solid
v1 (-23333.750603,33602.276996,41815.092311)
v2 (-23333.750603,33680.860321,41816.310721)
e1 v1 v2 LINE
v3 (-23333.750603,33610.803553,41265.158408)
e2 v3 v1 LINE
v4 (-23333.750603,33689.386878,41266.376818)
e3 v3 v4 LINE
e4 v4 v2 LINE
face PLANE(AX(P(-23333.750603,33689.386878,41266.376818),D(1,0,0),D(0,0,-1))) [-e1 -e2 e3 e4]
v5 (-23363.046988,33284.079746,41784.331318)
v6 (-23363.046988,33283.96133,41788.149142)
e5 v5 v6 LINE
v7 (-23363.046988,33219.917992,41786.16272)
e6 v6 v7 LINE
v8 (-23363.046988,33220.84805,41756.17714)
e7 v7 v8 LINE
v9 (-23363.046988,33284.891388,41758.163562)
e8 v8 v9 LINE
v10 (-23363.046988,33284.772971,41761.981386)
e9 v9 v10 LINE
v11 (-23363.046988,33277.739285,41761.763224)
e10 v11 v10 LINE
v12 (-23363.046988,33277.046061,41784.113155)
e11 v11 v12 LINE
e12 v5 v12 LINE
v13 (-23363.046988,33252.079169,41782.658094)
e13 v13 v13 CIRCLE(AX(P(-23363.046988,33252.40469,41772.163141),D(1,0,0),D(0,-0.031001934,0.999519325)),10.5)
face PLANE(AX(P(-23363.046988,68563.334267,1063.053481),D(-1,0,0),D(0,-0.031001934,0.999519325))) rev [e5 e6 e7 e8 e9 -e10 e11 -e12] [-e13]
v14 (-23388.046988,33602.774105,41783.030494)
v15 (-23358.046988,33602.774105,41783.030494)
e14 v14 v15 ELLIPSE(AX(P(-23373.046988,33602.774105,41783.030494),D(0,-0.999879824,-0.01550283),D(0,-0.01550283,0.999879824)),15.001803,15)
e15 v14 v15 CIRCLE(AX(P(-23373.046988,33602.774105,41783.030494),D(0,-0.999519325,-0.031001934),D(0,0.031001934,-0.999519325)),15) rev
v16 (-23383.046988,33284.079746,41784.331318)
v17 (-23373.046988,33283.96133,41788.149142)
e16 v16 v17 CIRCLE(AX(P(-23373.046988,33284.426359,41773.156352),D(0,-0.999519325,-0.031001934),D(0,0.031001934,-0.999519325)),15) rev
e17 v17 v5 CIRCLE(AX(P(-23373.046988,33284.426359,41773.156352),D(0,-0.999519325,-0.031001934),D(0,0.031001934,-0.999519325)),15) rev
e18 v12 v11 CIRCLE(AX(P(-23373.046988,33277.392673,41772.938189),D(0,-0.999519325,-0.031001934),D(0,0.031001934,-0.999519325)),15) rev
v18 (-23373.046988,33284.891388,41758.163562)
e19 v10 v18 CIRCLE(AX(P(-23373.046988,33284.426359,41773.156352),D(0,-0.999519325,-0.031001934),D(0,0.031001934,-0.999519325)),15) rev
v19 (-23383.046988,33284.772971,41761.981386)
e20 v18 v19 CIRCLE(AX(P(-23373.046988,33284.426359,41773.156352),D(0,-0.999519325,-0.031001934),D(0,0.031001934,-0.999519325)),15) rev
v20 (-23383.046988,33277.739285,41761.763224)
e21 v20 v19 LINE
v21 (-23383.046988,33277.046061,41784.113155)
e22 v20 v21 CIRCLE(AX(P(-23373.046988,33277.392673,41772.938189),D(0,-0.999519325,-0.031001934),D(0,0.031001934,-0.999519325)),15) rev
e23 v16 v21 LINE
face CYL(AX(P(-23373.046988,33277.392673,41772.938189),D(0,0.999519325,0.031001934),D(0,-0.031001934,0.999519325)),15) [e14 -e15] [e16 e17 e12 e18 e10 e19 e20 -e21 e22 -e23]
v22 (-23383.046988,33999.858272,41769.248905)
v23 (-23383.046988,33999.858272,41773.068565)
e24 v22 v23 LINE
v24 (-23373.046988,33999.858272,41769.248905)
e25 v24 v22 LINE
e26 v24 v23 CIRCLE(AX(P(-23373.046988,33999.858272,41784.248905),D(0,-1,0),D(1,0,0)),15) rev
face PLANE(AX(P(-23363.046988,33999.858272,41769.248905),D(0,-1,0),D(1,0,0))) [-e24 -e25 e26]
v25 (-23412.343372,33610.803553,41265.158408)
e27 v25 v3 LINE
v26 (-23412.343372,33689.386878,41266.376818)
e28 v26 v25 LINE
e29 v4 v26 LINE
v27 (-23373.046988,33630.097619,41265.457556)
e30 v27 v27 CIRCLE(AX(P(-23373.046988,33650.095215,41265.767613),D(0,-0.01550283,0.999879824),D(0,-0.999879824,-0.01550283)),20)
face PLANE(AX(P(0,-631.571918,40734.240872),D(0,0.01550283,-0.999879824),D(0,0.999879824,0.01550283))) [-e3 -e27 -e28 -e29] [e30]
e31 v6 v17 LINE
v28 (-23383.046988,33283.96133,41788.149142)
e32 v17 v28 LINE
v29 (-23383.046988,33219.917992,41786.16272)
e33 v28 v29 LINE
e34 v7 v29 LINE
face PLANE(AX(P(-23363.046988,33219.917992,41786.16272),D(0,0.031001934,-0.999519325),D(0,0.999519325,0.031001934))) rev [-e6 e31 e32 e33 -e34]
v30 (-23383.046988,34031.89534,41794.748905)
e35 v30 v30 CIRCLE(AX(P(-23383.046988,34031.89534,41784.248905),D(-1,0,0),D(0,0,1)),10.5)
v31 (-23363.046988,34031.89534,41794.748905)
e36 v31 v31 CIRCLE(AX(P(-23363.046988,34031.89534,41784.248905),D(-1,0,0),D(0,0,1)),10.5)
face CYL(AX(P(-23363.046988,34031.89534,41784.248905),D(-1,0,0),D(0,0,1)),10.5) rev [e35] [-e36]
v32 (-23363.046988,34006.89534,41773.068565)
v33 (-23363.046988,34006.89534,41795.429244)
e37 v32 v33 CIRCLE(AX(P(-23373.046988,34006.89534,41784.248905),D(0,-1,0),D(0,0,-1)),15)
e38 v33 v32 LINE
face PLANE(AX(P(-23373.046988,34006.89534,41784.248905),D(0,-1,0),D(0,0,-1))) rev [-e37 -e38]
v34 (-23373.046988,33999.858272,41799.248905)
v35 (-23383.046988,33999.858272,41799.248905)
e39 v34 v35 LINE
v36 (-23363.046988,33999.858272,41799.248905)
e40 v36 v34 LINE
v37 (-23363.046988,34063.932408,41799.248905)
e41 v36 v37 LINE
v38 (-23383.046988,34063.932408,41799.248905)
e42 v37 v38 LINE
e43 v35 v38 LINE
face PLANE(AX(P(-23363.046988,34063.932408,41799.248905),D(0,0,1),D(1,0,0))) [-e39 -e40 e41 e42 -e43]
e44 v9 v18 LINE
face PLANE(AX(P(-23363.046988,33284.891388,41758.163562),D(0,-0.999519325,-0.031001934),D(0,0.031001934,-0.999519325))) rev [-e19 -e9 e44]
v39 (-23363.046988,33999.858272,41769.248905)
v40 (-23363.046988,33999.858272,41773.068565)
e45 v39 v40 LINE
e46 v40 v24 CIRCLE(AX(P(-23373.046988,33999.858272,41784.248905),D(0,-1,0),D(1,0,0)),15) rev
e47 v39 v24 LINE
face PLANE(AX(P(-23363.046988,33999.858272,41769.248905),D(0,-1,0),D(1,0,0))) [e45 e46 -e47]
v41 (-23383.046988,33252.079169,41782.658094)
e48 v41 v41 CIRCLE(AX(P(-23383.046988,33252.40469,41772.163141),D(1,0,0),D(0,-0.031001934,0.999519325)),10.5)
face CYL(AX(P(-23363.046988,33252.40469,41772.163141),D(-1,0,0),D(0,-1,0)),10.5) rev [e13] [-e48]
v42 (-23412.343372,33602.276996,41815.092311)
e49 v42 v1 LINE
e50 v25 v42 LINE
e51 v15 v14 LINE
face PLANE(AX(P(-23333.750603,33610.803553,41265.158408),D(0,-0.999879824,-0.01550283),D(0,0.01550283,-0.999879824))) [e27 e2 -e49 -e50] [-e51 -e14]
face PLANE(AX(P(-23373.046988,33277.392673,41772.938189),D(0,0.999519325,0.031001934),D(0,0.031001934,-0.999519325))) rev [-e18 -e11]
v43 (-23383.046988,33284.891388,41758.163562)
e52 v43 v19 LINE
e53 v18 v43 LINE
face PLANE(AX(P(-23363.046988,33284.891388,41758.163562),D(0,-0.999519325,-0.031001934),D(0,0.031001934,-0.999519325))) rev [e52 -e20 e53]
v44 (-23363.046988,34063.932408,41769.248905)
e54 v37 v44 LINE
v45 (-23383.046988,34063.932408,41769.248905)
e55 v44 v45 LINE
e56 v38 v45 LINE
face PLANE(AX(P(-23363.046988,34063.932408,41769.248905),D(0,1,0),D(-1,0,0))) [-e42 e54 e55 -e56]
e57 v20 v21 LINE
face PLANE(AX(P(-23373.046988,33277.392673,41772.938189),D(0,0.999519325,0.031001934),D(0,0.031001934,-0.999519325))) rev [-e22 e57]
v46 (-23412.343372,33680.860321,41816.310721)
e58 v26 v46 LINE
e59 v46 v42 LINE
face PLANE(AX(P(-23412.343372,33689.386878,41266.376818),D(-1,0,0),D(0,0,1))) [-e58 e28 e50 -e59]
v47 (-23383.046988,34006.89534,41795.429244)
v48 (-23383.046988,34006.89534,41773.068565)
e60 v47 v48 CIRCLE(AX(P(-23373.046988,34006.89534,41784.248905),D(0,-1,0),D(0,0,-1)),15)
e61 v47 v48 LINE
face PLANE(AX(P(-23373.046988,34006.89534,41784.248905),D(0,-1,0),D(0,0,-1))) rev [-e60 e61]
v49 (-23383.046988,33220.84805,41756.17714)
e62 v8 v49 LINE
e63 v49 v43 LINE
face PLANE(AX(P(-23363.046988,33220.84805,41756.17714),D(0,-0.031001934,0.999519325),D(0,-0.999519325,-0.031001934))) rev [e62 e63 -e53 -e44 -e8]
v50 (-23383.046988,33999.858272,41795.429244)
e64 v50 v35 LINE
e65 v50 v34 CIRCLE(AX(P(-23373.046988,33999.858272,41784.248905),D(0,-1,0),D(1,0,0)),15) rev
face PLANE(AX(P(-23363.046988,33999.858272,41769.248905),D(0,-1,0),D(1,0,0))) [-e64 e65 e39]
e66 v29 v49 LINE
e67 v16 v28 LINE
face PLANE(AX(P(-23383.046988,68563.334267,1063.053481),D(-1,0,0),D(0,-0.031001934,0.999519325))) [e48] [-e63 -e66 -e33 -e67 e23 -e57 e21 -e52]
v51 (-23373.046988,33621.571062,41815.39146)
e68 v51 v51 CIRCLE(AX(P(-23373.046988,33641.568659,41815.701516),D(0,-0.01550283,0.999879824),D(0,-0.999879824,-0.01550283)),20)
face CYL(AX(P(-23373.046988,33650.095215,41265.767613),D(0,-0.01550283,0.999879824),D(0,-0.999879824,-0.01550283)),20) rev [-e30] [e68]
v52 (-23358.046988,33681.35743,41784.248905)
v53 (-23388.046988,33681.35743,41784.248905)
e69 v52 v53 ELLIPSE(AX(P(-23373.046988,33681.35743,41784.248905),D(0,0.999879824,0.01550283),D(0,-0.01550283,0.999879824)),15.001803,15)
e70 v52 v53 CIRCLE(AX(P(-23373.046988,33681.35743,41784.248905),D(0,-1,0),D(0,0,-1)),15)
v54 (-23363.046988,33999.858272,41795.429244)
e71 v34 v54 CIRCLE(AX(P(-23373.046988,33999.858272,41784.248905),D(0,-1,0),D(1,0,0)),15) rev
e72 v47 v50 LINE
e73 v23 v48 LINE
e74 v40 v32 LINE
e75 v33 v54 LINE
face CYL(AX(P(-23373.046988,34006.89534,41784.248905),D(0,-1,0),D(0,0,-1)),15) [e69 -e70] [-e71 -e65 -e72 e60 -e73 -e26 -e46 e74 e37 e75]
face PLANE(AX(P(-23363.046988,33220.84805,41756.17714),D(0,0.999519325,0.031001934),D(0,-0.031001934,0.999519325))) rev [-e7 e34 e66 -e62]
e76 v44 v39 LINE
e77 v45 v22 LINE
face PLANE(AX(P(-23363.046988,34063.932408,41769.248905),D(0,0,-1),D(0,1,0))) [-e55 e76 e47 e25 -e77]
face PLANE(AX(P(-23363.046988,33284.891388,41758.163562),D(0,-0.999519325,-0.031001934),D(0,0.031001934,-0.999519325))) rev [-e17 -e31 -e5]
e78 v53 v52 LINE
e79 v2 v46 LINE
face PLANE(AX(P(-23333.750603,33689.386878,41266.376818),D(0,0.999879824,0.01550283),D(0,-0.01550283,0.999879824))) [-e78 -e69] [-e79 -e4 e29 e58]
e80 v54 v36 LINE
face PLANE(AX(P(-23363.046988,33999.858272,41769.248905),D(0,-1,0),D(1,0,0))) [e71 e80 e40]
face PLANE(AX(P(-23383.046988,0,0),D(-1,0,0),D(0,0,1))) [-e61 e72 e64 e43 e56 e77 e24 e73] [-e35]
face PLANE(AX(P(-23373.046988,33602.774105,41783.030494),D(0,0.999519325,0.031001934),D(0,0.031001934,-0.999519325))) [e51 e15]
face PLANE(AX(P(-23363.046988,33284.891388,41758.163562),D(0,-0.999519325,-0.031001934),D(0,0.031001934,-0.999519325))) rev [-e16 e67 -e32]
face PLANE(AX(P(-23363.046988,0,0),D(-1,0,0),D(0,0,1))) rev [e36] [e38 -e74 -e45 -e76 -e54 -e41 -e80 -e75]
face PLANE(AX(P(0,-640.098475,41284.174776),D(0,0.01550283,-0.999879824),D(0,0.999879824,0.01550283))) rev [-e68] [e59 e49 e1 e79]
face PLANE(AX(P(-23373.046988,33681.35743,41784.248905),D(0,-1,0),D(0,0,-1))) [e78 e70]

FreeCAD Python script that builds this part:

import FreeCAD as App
import Part
import Sketcher

V = App.Vector


def add_polygon(sketch, points):
    """Adds a closed chain of lines whose ends are joined by coincident constraints."""
    first, n = sketch.GeometryCount, len(points)
    for a, b in zip(points, points[1:] + points[:1]):
        sketch.addGeometry(Part.LineSegment(App.Vector(*a, 0), App.Vector(*b, 0)), False)
    for i in range(n):
        sketch.addConstraint(Sketcher.Constraint("Coincident", first + i, 2, first + (i + 1) % n, 1))

doc = App.newDocument("Part")
params = doc.addObject("Spreadsheet::Sheet", "Params")
for row, (alias, value) in enumerate([
    ("sketch1_diameter", "40 mm"),
    ("pad1_length", "550 mm"),
    ("sketch2_diameter", "30 mm"),
    ("sketch4_diameter", "21 mm"),
    ("sketch4_height", "30 mm"),
    ("pad2_length", "20 mm"),
], start=1):
    params.set(f"A{row}", alias)
    params.set(f"B{row}", "=" + value)
    params.setAlias(f"B{row}", alias)

body = doc.addObject("PartDesign::Body", "Body")

sketch1 = body.newObject("Sketcher::SketchObject", "Sketch")
sketch1.Placement = App.Placement(V(0, 27232.877627, 41716.336726), App.Rotation(V(1, 0, 0), V(0, 0.999879824, 0.01550283), V(0, -0.01550283, 0.999879824), "ZXY"))
add_polygon(sketch1, [(-23412.343372, 6448.757682), (-23412.343372, 6370.164912), (-23333.750603, 6370.164912), (-23333.750603, 6448.757682)])
sketch1.addGeometry(Part.Circle(V(-23373.046988, 6409.461297, 0), V(0, 0, 1), 20), False)
sketch1.addConstraint(Sketcher.Constraint("Vertical", 0))
sketch1.addConstraint(Sketcher.Constraint("Horizontal", 1))
sketch1.addConstraint(Sketcher.Constraint("Vertical", 2))
sketch1.addConstraint(Sketcher.Constraint("Horizontal", 3))
sketch1.addConstraint(Sketcher.Constraint("Equal", 3, 0))
sketch1.addConstraint(Sketcher.Constraint("Diameter", 4, 40.0))
sketch1.addConstraint(Sketcher.Constraint("DistanceX", 1, 1, 1, 2, 78.592769))
sketch1.addConstraint(Sketcher.Constraint("DistanceY", -1, 1, 2, 2, 6448.757682))
sketch1.addConstraint(Sketcher.Constraint("DistanceX", 4, 3, -1, 1, 23373.046988))
sketch1.addConstraint(Sketcher.Constraint("DistanceY", -1, 1, 4, 3, 6409.461297))
sketch1.addConstraint(Sketcher.Constraint("DistanceX", 0, 2, -1, 1, 23412.343372))
sketch1.setExpression("Constraints[9]", "Params.sketch1_diameter")
pad1 = body.newObject("PartDesign::Pad", "Pad")
pad1.Profile = sketch1
pad1.setExpression("Length", "Params.pad1_length")
pad1.Reversed = True

sketch2 = body.newObject("Sketcher::SketchObject", "Sketch001")
sketch2.AttachmentSupport = (doc.getObject("XZ_Plane"), [""])
sketch2.MapMode = "FlatFace"
sketch2.AttachmentOffset = App.Placement(V(0, 0, -34006.89534), App.Rotation())
sketch2.addGeometry(Part.Circle(V(-23373.046988, 41784.248905, 0), V(0, 0, 1), 15), False)
sketch2.addConstraint(Sketcher.Constraint("Diameter", 0, 30.0))
sketch2.addConstraint(Sketcher.Constraint("DistanceX", 0, 3, -1, 1, 23373.046988))
sketch2.addConstraint(Sketcher.Constraint("DistanceY", -1, 1, 0, 3, 41784.248905))
sketch2.setExpression("Constraints[0]", "Params.sketch2_diameter")

sketch3 = body.newObject("Sketcher::SketchObject", "Sketch002")
sketch3.AttachmentSupport = (doc.getObject("XY_Plane"), [""])
sketch3.MapMode = "FlatFace"
sketch3.AttachmentOffset = App.Placement(V(0, 0, 41784.248905), App.Rotation())
sketch3.addGeometry(Part.LineSegment(V(-23373.046988, 34006.89534, 0), V(-23373.046988, 33681.35743, 0)), False)
sketch3.addConstraint(Sketcher.Constraint("Vertical", 0))
sketch3.addConstraint(Sketcher.Constraint("DistanceY", 0, 2, 0, 1, 325.53791))
sketch3.addConstraint(Sketcher.Constraint("DistanceY", -1, 1, 0, 1, 34006.89534))
sketch3.addConstraint(Sketcher.Constraint("DistanceX", 0, 1, -1, 1, 23373.046988))
doc.recompute()

additivepipe = body.newObject("PartDesign::AdditivePipe", "AdditivePipe")
additivepipe.Profile = sketch2
additivepipe.Spine = (sketch3, ["Edge1"])

sketch4 = body.newObject("Sketcher::SketchObject", "Sketch003")
sketch4.AttachmentSupport = (doc.getObject("YZ_Plane"), [""])
sketch4.MapMode = "FlatFace"
sketch4.AttachmentOffset = App.Placement(V(0, 0, -23373.046988), App.Rotation())
add_polygon(sketch4, [(34063.932408, 41799.248905), (34063.932408, 41769.248905), (33999.858272, 41769.248905), (33999.858272, 41799.248905)])
sketch4.addGeometry(Part.Circle(V(34031.89534, 41784.248905, 0), V(0, 0, 1), 10.5), False)
sketch4.addConstraint(Sketcher.Constraint("Vertical", 0))
sketch4.addConstraint(Sketcher.Constraint("Horizontal", 1))
sketch4.addConstraint(Sketcher.Constraint("Vertical", 2))
sketch4.addConstraint(Sketcher.Constraint("Horizontal", 3))
sketch4.addConstraint(Sketcher.Constraint("Diameter", 4, 21.0))
sketch4.addConstraint(Sketcher.Constraint("DistanceY", 0, 2, 0, 1, 30.0))
sketch4.addConstraint(Sketcher.Constraint("DistanceY", 0, 2, 4, 3, 15.0))
sketch4.addConstraint(Sketcher.Constraint("DistanceX", 1, 2, 1, 1, 64.074137))
sketch4.addConstraint(Sketcher.Constraint("DistanceX", -1, 1, 4, 3, 34031.89534))
sketch4.addConstraint(Sketcher.Constraint("DistanceX", -1, 1, 0, 2, 34063.932408))
sketch4.addConstraint(Sketcher.Constraint("DistanceY", -1, 1, 4, 3, 41784.248905))
sketch4.setExpression("Constraints[8]", "Params.sketch4_diameter")
sketch4.setExpression("Constraints[9]", "Params.sketch4_height")
pad2 = body.newObject("PartDesign::Pad", "Pad001")
pad2.Profile = sketch4
pad2.setExpression("Length", "Params.pad2_length")
pad2.Midplane = True
doc.recompute()

datumplane = body.newObject("PartDesign::Plane", "DatumPlane")
datumplane.Placement = App.Placement(V(0, 34281.66714, 531.526735), App.Rotation(V(0, -0.01550283, 0.999879824), V(-1, 0, 0), V(0, -0.999879824, -0.01550283), "ZXY"))
mirrored = body.newObject("PartDesign::Mirrored", "Mirrored")
mirrored.Originals = [additivepipe, pad2]
mirrored.MirrorPlane = (datumplane, [""])
body.Tip = mirrored

doc.recompute()
